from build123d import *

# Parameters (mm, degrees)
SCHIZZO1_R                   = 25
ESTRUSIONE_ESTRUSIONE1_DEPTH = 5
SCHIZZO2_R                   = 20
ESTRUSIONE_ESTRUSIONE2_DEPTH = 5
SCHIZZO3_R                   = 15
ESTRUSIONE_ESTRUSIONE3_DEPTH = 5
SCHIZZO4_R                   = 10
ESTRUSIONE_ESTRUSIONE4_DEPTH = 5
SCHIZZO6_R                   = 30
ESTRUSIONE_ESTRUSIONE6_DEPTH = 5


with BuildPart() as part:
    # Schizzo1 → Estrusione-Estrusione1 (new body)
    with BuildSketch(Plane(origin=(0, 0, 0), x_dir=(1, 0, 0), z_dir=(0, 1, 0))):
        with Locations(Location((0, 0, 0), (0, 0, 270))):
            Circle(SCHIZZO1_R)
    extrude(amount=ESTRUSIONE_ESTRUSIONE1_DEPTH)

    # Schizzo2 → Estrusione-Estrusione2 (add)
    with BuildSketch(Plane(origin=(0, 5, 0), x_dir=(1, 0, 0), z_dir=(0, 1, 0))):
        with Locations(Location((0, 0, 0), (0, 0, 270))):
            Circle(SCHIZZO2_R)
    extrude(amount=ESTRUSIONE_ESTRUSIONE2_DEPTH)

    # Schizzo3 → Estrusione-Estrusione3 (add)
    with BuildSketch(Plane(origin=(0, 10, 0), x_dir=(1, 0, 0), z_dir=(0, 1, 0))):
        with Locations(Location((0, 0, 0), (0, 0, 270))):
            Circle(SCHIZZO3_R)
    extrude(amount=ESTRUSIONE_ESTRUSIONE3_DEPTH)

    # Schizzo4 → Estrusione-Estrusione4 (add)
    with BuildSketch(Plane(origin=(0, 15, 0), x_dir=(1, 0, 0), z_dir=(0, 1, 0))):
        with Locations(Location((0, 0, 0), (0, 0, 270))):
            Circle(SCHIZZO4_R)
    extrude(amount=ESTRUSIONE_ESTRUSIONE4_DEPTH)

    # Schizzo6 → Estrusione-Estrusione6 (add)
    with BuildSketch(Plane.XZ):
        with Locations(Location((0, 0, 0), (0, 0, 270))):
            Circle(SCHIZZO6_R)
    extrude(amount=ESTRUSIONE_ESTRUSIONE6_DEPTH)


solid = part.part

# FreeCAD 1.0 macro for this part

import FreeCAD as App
import Part
import Sketcher

V = App.Vector
Q = App.Units.Quantity

doc = App.newDocument("Part")
params = doc.addObject("Spreadsheet::Sheet", "Params")
for row, (alias, value) in enumerate([
    ("sketch1_diameter", "50 mm"),
    ("pad1_length", "5 mm"),
    ("sketch2_diameter", "40 mm"),
    ("pad2_length", "5 mm"),
    ("sketch3_diameter", "30 mm"),
    ("pad3_length", "5 mm"),
    ("sketch4_diameter", "20 mm"),
    ("pad4_length", "5 mm"),
    ("sketch5_diameter", "60 mm"),
    ("pad5_length", "5 mm"),
], start=1):
    params.set(f"A{row}", alias)
    params.set(f"B{row}", "=" + value)
    params.setAlias(f"B{row}", alias)

body = doc.addObject("PartDesign::Body", "Body")

# Sketch on XZ plane
sketch1 = body.newObject("Sketcher::SketchObject", "Sketch")
sketch1.AttachmentSupport = (doc.getObject("XZ_Plane"), [""])
sketch1.MapMode = "FlatFace"
sketch1.addGeometry(Part.Circle(V(0, 0, 0), V(0, 0, 1), 25), False)
sketch1.addConstraint([
    Sketcher.Constraint("Coincident", 0, 3, -1, 1),
    Sketcher.Constraint("Diameter", 0, Q("50 mm")),
])
sketch1.setExpression("Constraints[1]", "Params.sketch1_diameter")
pad1 = body.newObject("PartDesign::Pad", "Pad")
pad1.Profile = sketch1
pad1.setExpression("Length", "Params.pad1_length")
pad1.Reversed = True

# Sketch on XZ plane
sketch2 = body.newObject("Sketcher::SketchObject", "Sketch001")
sketch2.AttachmentSupport = (doc.getObject("XZ_Plane"), [""])
sketch2.MapMode = "FlatFace"
sketch2.AttachmentOffset = App.Placement(V(0, 0, -5), App.Rotation())
sketch2.addGeometry(Part.Circle(V(0, 0, 0), V(0, 0, 1), 20), False)
sketch2.addConstraint([
    Sketcher.Constraint("Coincident", 0, 3, -1, 1),
    Sketcher.Constraint("Diameter", 0, Q("40 mm")),
])
sketch2.setExpression("Constraints[1]", "Params.sketch2_diameter")
pad2 = body.newObject("PartDesign::Pad", "Pad001")
pad2.Profile = sketch2
pad2.setExpression("Length", "Params.pad2_length")
pad2.Reversed = True

# Sketch on XZ plane
sketch3 = body.newObject("Sketcher::SketchObject", "Sketch002")
sketch3.AttachmentSupport = (doc.getObject("XZ_Plane"), [""])
sketch3.MapMode = "FlatFace"
sketch3.AttachmentOffset = App.Placement(V(0, 0, -10), App.Rotation())
sketch3.addGeometry(Part.Circle(V(0, 0, 0), V(0, 0, 1), 15), False)
sketch3.addConstraint([
    Sketcher.Constraint("Coincident", 0, 3, -1, 1),
    Sketcher.Constraint("Diameter", 0, Q("30 mm")),
])
sketch3.setExpression("Constraints[1]", "Params.sketch3_diameter")
pad3 = body.newObject("PartDesign::Pad", "Pad002")
pad3.Profile = sketch3
pad3.setExpression("Length", "Params.pad3_length")
pad3.Reversed = True

# Sketch on XZ plane
sketch4 = body.newObject("Sketcher::SketchObject", "Sketch003")
sketch4.AttachmentSupport = (doc.getObject("XZ_Plane"), [""])
sketch4.MapMode = "FlatFace"
sketch4.AttachmentOffset = App.Placement(V(0, 0, -15), App.Rotation())
sketch4.addGeometry(Part.Circle(V(0, 0, 0), V(0, 0, 1), 10), False)
sketch4.addConstraint([
    Sketcher.Constraint("Coincident", 0, 3, -1, 1),
    Sketcher.Constraint("Diameter", 0, Q("20 mm")),
])
sketch4.setExpression("Constraints[1]", "Params.sketch4_diameter")
pad4 = body.newObject("PartDesign::Pad", "Pad003")
pad4.Profile = sketch4
pad4.setExpression("Length", "Params.pad4_length")
pad4.Reversed = True

# Sketch on XZ plane
sketch5 = body.newObject("Sketcher::SketchObject", "Sketch004")
sketch5.AttachmentSupport = (doc.getObject("XZ_Plane"), [""])
sketch5.MapMode = "FlatFace"
sketch5.addGeometry(Part.Circle(V(0, 0, 0), V(0, 0, 1), 30), False)
sketch5.addConstraint([
    Sketcher.Constraint("Coincident", 0, 3, -1, 1),
    Sketcher.Constraint("Diameter", 0, Q("60 mm")),
])
sketch5.setExpression("Constraints[1]", "Params.sketch5_diameter")
pad5 = body.newObject("PartDesign::Pad", "Pad004")
pad5.Profile = sketch5
pad5.setExpression("Length", "Params.pad5_length")

doc.recompute()
